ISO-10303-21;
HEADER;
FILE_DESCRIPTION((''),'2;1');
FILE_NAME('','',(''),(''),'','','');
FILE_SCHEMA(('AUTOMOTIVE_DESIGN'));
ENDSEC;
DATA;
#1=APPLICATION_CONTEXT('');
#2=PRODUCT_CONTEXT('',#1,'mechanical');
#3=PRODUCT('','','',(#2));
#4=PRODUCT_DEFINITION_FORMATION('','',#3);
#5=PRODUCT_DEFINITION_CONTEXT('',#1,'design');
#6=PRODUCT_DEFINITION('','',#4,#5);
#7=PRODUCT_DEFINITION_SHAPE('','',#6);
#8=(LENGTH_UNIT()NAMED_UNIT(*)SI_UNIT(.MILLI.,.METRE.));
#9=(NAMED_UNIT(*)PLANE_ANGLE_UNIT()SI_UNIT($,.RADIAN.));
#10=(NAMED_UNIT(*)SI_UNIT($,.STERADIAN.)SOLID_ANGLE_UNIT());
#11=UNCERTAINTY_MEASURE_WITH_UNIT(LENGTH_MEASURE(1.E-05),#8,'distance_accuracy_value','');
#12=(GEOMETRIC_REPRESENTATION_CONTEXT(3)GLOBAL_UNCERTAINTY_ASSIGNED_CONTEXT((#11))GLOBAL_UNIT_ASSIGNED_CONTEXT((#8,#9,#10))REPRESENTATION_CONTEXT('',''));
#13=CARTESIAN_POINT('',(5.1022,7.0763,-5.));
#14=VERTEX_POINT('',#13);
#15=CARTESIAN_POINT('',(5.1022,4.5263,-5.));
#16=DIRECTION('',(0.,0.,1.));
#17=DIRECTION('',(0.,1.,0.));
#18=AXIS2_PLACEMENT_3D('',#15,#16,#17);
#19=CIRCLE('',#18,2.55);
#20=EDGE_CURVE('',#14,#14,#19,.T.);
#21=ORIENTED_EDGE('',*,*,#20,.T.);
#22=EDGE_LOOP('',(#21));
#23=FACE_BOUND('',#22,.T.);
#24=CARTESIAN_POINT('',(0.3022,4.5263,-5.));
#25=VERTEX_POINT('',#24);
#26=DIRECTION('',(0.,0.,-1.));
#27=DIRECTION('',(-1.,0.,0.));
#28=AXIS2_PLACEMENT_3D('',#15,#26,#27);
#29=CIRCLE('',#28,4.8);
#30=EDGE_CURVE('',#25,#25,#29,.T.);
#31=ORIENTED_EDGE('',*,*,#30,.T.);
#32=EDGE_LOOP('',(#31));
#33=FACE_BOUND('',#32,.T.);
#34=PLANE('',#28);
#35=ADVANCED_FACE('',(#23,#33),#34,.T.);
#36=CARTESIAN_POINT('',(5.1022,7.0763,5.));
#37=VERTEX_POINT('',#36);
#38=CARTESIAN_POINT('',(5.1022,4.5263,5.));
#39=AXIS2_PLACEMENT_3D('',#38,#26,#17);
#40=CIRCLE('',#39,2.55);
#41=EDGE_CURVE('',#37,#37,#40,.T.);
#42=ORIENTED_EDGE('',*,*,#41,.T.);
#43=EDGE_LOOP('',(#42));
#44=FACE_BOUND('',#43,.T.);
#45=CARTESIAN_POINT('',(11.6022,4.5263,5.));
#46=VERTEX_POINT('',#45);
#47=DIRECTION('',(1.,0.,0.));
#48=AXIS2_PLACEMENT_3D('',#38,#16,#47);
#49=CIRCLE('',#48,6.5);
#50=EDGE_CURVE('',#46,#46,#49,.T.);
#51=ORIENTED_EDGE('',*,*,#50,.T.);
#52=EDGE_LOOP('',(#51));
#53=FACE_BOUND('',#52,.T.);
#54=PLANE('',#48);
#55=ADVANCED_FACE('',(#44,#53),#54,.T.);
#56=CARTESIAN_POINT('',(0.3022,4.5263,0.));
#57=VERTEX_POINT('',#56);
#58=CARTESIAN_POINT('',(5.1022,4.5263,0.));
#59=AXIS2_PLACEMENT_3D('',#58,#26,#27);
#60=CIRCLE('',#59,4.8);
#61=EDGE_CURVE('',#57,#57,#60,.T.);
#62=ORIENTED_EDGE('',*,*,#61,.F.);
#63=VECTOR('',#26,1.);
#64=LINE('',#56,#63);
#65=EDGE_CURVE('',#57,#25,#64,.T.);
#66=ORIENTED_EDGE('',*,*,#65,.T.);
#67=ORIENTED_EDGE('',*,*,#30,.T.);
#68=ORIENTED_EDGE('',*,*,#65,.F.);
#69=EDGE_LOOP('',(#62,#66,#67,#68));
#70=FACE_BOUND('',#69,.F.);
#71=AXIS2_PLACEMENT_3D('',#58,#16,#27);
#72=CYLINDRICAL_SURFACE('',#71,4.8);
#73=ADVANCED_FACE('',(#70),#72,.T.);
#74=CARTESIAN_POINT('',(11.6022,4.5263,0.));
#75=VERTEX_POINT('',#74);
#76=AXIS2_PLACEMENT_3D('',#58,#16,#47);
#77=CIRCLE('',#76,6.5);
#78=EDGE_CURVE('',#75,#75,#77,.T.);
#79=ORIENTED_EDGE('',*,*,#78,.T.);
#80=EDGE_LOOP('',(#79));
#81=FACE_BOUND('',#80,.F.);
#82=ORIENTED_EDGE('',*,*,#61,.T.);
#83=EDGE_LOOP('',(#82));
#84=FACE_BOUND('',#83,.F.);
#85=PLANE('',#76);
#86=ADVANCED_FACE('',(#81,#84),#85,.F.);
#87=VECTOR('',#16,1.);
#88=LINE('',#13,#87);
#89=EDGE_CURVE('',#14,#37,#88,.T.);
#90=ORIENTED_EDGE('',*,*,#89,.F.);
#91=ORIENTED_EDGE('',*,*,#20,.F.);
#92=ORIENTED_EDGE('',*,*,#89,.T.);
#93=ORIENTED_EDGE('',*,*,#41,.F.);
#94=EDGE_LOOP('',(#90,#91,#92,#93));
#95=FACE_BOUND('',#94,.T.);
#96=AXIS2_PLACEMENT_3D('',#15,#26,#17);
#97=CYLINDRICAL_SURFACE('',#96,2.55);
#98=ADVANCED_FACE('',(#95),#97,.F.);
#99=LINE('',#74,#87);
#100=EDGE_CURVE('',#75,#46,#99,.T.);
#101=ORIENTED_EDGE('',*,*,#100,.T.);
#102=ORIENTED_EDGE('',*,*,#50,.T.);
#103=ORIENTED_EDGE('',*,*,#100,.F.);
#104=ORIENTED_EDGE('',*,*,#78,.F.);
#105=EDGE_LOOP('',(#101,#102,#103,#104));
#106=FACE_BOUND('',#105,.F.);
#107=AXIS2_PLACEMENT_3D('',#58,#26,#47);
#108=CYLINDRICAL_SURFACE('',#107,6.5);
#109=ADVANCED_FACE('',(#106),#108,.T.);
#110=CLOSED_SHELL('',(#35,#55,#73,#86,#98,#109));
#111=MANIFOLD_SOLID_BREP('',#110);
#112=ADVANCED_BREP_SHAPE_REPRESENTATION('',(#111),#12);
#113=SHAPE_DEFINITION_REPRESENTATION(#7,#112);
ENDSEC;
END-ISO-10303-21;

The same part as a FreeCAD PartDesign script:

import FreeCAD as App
import Part
import Sketcher

V = App.Vector
Q = App.Units.Quantity

doc = App.newDocument("Part")
body = doc.addObject("PartDesign::Body", "Body")

# Sketch on XY plane
sketch1 = body.newObject("Sketcher::SketchObject", "Sketch")
sketch1.AttachmentSupport = (doc.getObject("XY_Plane"), [""])
sketch1.MapMode = "FlatFace"
sketch1.addGeometry(Part.Circle(V(5, 5, 0), V(0, 0, 1), 6), False)
sketch1.addConstraint([
    Sketcher.Constraint("Diameter", 0, Q("13 mm")),
    Sketcher.Constraint("DistanceX", -1, 1, 0, 3, Q("5.1022 mm")),
    Sketcher.Constraint("DistanceY", -1, 1, 0, 3, Q("4.5263 mm")),
])
pad1 = body.newObject("PartDesign::Pad", "Pad")
pad1.Profile = sketch1
pad1.Length = 5

# Sketch on XY plane
sketch2 = body.newObject("Sketcher::SketchObject", "Sketch001")
sketch2.AttachmentSupport = (doc.getObject("XY_Plane"), [""])
sketch2.MapMode = "FlatFace"
sketch2.addGeometry(Part.Circle(V(5.1, 4.5, 0), V(0, 0, 1), 4.8), False)
sketch2.addConstraint([
    Sketcher.Constraint("Diameter", 0, Q("9.6 mm")),
    Sketcher.Constraint("DistanceX", -1, 1, 0, 3, Q("5.1022 mm")),
    Sketcher.Constraint("DistanceY", -1, 1, 0, 3, Q("4.5263 mm")),
])
pad2 = body.newObject("PartDesign::Pad", "Pad001")
pad2.Profile = sketch2
pad2.Length = 5
pad2.Reversed = True

# Sketch on XY plane
sketch3 = body.newObject("Sketcher::SketchObject", "Sketch002")
sketch3.AttachmentSupport = (doc.getObject("XY_Plane"), [""])
sketch3.MapMode = "FlatFace"
sketch3.AttachmentOffset = App.Placement(V(0, 0, -5), App.Rotation())
sketch3.addGeometry(Part.Circle(V(5.1, 4.5, 0), V(0, 0, 1), 2.5), False)
sketch3.addConstraint([
    Sketcher.Constraint("Diameter", 0, Q("5.1 mm")),
    Sketcher.Constraint("DistanceX", -1, 1, 0, 3, Q("5.1022 mm")),
    Sketcher.Constraint("DistanceY", -1, 1, 0, 3, Q("4.5263 mm")),
])
doc.recompute()
hole = body.newObject("PartDesign::Hole", "Hole")
hole.Profile = sketch3
hole.ThreadType = "None"
hole.Diameter = 5.1
hole.DepthType = "ThroughAll"
hole.Reversed = True

doc.recompute()
